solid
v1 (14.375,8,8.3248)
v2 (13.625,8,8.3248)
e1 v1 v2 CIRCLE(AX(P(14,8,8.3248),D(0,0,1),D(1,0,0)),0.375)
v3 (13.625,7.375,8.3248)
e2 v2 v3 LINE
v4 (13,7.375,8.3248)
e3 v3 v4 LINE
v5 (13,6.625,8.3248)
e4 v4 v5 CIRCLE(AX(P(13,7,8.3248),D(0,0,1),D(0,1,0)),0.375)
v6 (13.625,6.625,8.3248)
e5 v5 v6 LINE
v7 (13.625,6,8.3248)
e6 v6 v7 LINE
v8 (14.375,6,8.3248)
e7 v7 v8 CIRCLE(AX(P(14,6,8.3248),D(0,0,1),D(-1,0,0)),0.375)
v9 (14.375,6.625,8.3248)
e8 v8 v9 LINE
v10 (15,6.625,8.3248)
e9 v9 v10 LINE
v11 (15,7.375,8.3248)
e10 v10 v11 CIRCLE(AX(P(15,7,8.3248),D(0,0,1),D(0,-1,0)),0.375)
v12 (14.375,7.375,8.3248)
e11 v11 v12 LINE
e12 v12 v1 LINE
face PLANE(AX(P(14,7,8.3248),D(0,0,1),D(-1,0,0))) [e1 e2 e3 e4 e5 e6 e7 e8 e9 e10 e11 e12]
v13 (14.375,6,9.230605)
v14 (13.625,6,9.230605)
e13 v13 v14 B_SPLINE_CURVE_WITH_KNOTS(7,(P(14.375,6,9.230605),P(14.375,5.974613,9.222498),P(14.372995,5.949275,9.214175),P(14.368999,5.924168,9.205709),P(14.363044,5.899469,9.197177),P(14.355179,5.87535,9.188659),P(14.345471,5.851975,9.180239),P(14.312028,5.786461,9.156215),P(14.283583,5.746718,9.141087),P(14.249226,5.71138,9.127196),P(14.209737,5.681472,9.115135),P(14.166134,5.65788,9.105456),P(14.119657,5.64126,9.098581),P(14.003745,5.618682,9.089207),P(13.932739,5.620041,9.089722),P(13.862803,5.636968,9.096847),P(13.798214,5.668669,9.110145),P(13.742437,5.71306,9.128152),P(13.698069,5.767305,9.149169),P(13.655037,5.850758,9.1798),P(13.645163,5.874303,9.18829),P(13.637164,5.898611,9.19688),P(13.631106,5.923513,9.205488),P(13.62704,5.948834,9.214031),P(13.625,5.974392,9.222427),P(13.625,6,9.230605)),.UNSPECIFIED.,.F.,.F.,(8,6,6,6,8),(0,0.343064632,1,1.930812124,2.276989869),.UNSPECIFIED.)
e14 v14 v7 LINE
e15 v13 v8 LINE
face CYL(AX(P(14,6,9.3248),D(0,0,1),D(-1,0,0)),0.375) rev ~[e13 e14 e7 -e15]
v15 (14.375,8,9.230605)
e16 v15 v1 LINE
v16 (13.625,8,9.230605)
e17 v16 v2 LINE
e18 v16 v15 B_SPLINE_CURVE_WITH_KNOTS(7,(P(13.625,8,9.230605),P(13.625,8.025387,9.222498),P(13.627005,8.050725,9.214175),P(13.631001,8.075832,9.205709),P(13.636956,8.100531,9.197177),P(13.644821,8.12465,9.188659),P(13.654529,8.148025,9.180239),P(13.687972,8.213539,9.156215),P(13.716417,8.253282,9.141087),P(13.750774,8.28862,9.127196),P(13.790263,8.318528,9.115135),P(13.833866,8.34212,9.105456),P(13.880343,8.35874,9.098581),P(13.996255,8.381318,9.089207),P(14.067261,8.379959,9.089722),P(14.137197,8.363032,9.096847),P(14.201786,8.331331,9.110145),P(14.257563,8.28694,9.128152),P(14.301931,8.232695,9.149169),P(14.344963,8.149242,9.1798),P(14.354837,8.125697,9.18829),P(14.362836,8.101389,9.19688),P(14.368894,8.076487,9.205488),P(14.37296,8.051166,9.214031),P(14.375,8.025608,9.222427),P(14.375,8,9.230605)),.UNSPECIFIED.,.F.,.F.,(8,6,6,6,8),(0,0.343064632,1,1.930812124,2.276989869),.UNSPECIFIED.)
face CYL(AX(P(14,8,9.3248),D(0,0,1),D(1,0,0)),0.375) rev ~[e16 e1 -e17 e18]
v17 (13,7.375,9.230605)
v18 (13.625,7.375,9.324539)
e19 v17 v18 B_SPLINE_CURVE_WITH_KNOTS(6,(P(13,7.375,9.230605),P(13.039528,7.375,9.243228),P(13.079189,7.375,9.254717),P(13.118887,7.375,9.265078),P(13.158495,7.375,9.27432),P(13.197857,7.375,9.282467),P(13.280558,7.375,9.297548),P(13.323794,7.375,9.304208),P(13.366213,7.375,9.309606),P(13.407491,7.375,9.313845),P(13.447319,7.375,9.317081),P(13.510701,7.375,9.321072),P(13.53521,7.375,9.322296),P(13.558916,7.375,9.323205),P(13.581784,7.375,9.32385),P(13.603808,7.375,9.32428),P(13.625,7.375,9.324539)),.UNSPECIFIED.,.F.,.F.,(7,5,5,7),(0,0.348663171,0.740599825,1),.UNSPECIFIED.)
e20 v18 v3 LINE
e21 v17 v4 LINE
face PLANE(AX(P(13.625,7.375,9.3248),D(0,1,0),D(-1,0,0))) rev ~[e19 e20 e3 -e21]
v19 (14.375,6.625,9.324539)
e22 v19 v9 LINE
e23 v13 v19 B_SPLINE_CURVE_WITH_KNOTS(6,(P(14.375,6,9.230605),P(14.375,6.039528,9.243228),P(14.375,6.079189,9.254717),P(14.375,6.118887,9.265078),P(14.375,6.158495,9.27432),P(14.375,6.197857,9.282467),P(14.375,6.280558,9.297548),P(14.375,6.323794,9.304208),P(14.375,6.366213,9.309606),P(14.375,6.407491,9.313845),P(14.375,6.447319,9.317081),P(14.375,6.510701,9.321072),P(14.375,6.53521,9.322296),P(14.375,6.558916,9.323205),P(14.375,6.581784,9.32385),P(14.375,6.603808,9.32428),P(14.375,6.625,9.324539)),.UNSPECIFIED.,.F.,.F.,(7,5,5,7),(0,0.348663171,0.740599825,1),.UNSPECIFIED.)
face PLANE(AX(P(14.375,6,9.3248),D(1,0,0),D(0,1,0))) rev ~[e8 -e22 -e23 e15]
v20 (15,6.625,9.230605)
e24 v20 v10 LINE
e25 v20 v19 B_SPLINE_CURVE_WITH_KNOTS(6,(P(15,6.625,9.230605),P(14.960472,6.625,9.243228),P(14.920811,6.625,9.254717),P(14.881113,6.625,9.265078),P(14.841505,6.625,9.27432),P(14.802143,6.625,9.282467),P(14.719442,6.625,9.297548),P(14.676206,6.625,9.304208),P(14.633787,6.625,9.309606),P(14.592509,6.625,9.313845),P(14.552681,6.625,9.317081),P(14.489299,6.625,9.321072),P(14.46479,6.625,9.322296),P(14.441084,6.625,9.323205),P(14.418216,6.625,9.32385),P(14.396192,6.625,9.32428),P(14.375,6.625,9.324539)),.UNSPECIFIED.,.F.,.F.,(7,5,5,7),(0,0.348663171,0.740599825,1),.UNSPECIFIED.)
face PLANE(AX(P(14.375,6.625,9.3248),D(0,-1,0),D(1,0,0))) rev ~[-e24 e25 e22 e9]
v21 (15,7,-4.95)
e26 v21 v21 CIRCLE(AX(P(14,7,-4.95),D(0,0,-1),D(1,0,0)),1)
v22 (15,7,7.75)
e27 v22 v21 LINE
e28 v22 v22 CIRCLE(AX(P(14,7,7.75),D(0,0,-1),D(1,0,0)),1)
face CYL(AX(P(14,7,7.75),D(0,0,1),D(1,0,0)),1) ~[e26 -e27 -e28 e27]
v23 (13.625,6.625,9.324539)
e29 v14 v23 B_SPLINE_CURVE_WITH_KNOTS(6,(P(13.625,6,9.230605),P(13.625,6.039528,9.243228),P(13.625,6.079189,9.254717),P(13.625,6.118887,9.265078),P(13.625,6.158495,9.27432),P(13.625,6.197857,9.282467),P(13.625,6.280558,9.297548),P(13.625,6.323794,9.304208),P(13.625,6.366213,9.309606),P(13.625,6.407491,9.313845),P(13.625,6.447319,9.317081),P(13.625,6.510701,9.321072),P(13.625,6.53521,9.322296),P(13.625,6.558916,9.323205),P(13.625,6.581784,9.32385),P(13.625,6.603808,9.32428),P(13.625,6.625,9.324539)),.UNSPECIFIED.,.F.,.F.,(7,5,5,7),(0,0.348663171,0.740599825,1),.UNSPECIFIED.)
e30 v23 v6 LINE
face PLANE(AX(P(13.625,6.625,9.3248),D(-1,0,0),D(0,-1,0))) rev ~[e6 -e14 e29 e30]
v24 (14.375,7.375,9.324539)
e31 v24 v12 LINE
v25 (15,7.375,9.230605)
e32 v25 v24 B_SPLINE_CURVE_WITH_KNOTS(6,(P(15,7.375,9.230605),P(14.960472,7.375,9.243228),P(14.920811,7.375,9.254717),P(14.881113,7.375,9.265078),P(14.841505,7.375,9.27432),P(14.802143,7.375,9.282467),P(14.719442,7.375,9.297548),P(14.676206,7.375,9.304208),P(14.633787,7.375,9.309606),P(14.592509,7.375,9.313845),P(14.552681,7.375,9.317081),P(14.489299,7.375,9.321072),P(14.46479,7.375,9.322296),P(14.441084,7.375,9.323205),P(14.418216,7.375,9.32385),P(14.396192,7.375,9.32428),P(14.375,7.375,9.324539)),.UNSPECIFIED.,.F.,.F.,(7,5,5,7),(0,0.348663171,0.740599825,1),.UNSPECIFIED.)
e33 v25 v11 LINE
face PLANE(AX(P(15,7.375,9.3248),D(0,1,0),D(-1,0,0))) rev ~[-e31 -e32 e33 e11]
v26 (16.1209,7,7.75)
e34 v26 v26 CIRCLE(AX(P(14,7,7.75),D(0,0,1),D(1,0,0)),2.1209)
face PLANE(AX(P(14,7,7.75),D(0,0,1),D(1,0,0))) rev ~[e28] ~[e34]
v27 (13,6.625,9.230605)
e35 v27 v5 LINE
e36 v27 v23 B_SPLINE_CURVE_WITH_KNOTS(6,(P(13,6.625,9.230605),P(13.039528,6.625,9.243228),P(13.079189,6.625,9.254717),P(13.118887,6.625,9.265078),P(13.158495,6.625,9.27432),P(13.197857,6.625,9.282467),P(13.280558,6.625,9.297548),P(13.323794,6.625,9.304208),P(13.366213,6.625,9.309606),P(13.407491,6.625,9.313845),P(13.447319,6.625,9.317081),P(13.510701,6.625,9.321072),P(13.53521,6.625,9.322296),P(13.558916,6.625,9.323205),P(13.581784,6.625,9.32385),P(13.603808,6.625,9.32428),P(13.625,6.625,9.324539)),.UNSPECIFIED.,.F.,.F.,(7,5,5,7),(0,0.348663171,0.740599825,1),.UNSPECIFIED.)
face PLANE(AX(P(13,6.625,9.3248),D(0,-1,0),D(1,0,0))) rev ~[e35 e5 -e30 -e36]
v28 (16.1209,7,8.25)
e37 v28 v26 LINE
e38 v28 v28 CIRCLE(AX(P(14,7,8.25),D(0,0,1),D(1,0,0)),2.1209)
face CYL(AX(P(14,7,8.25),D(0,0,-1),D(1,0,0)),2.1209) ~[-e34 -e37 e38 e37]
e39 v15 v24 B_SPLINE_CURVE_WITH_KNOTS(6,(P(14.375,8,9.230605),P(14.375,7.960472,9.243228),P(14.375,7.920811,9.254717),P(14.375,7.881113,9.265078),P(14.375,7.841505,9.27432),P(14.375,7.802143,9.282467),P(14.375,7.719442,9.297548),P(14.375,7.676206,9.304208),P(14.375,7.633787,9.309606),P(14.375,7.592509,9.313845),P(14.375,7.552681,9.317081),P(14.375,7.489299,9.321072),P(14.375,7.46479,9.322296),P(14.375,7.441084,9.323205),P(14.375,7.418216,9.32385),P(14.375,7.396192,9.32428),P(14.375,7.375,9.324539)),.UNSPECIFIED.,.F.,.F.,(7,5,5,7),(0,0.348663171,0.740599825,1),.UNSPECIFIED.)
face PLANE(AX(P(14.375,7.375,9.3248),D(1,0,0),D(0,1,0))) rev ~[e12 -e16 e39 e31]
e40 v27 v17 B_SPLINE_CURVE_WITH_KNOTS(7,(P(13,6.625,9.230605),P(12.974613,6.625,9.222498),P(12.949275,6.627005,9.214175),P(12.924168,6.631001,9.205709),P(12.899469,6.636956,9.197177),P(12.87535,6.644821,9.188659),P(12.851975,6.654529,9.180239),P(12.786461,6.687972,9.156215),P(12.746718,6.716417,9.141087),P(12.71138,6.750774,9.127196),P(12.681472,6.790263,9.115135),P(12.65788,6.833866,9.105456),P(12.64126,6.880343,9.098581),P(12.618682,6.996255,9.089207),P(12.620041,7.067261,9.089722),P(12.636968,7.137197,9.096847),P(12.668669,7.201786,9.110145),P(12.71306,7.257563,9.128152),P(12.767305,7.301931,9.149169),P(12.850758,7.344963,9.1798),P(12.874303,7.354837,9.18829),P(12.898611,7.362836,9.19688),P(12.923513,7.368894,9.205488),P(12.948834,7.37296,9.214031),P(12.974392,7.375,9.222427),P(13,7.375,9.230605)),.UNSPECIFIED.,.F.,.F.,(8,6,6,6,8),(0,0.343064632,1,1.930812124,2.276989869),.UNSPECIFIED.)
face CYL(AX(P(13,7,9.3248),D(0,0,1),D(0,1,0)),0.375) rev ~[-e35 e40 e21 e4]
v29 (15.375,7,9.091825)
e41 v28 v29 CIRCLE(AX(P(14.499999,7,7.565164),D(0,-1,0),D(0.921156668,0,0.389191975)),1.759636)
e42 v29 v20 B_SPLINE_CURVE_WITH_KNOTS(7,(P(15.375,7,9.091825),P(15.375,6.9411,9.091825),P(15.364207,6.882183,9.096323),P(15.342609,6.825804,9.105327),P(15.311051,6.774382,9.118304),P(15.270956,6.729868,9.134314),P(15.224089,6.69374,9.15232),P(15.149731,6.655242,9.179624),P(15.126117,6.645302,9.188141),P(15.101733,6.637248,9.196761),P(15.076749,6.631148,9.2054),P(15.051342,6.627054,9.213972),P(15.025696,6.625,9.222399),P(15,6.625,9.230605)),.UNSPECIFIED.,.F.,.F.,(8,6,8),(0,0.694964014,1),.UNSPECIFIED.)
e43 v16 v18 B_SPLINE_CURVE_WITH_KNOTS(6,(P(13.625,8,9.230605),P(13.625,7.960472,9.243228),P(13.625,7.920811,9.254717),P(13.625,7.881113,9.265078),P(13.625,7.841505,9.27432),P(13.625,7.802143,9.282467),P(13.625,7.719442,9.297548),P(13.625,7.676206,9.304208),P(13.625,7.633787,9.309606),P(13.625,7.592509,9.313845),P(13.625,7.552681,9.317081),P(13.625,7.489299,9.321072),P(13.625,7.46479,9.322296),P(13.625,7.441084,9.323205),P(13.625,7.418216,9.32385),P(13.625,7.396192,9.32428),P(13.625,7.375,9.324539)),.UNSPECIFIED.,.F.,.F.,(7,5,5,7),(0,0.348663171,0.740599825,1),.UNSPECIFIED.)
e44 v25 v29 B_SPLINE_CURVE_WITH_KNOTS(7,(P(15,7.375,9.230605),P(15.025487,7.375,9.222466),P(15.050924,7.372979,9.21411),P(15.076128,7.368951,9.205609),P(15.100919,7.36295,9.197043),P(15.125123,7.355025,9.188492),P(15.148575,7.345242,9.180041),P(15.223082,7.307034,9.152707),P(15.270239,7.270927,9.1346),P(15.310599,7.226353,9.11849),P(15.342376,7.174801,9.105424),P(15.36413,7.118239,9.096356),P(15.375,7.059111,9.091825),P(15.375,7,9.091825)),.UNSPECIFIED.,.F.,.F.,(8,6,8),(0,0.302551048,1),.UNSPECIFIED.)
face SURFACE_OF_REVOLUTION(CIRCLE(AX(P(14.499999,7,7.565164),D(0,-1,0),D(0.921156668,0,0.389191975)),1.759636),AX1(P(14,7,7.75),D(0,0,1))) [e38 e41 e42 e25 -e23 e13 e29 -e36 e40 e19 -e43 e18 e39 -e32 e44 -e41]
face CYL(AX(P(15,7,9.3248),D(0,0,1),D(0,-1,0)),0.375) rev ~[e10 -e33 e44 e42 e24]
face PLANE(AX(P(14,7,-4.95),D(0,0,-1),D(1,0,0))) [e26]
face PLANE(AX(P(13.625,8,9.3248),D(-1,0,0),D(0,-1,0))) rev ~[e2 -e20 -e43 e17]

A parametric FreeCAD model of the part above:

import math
import FreeCAD as App
import Part
import Sketcher
from FreeCAD import Vector

doc = App.newDocument("Part")
body = doc.addObject("PartDesign::Body", "Body")

# Sketch on XZ plane
sketch1 = doc.addObject("Sketcher::SketchObject", "Sketch")
body.addObject(sketch1)
sketch1.AttachmentSupport = (doc.XZ_Plane, [""])
sketch1.MapMode = "FlatFace"
sketch1.addGeometry(Part.LineSegment(Vector(0, 1.5748, 0), Vector(0, 0, 0)), False)
sketch1.addGeometry(Part.LineSegment(Vector(0, 0, 0), Vector(2.1209, 0, 0)), False)
sketch1.addGeometry(Part.LineSegment(Vector(2.1209, 0, 0), Vector(2.1209, 0.5, 0)), False)
sketch1.addGeometry(Part.ArcOfCircle(Part.Circle(Vector(0.499999, -0.184836, 0), Vector(0, 0, 1), 1.759636), math.radians(22.904231), math.radians(89.999976)), False)
sketch1.addGeometry(Part.LineSegment(Vector(0.5, 1.5748, 0), Vector(0, 1.5748, 0)), False)
sketch1.addConstraint(Sketcher.Constraint("Coincident", 0, 2, 1, 1))
sketch1.addConstraint(Sketcher.Constraint("Coincident", 1, 2, 2, 1))
sketch1.addConstraint(Sketcher.Constraint("Coincident", 2, 2, 3, 1))
sketch1.addConstraint(Sketcher.Constraint("Tangent", 3, 2, 4, 1))
sketch1.addConstraint(Sketcher.Constraint("Coincident", 4, 2, 0, 1))
sketch1.addConstraint(Sketcher.Constraint("Vertical", 0))
sketch1.addConstraint(Sketcher.Constraint("Horizontal", 1))
sketch1.addConstraint(Sketcher.Constraint("Vertical", 2))
sketch1.addConstraint(Sketcher.Constraint("Horizontal", 4))
sketch1.addConstraint(Sketcher.Constraint("Coincident", 0, 2, -1, 1))
sketch1.addConstraint(Sketcher.Constraint("Equal", 4, 2))
sketch1.addConstraint(Sketcher.Constraint("DistanceX", 4, 2, 4, 1, 0.5))
sketch1.addConstraint(Sketcher.Constraint("DistanceX", 1, 1, 1, 2, 2.1209))
sketch1.addConstraint(Sketcher.Constraint("DistanceY", 0, 2, 0, 1, 1.5748))
revolution = doc.addObject("PartDesign::Revolution", "Revolution")
body.addObject(revolution)
revolution.Profile = sketch1
revolution.ReferenceAxis = (sketch1, ["V_Axis"])
revolution.Angle = 360

# Sketch on XY plane
sketch2 = doc.addObject("Sketcher::SketchObject", "Sketch001")
body.addObject(sketch2)
sketch2.AttachmentSupport = (doc.XY_Plane, [""])
sketch2.MapMode = "FlatFace"
sketch2.AttachmentOffset = App.Placement(Vector(0, 0, 1.5748), App.Rotation())
sketch2.addGeometry(Part.ArcOfCircle(Part.Circle(Vector(0, -1, 0), Vector(0, 0, 1), 0.375), math.radians(180), math.radians(360)), False)
sketch2.addGeometry(Part.LineSegment(Vector(0.375, -1, 0), Vector(0.375, -0.375, 0)), False)
sketch2.addGeometry(Part.LineSegment(Vector(0.375, -0.375, 0), Vector(1, -0.375, 0)), False)
sketch2.addGeometry(Part.ArcOfCircle(Part.Circle(Vector(1, 0, 0), Vector(0, 0, 1), 0.375), math.radians(-90), math.radians(90)), False)
sketch2.addGeometry(Part.LineSegment(Vector(1, 0.375, 0), Vector(0.375, 0.375, 0)), False)
sketch2.addGeometry(Part.LineSegment(Vector(0.375, 0.375, 0), Vector(0.375, 1, 0)), False)
sketch2.addGeometry(Part.ArcOfCircle(Part.Circle(Vector(0, 1, 0), Vector(0, 0, 1), 0.375), math.radians(0), math.radians(180)), False)
sketch2.addGeometry(Part.LineSegment(Vector(-0.375, 1, 0), Vector(-0.375, 0.375, 0)), False)
sketch2.addGeometry(Part.LineSegment(Vector(-0.375, 0.375, 0), Vector(-1, 0.375, 0)), False)
sketch2.addGeometry(Part.ArcOfCircle(Part.Circle(Vector(-1, 0, 0), Vector(0, 0, 1), 0.375), math.radians(90), math.radians(270)), False)
sketch2.addGeometry(Part.LineSegment(Vector(-1, -0.375, 0), Vector(-0.375, -0.375, 0)), False)
sketch2.addGeometry(Part.LineSegment(Vector(-0.375, -0.375, 0), Vector(-0.375, -1, 0)), False)
sketch2.addConstraint(Sketcher.Constraint("Tangent", 0, 2, 1, 1))
sketch2.addConstraint(Sketcher.Constraint("Coincident", 1, 2, 2, 1))
sketch2.addConstraint(Sketcher.Constraint("Tangent", 2, 2, 3, 1))
sketch2.addConstraint(Sketcher.Constraint("Tangent", 3, 2, 4, 1))
sketch2.addConstraint(Sketcher.Constraint("Coincident", 4, 2, 5, 1))
sketch2.addConstraint(Sketcher.Constraint("Tangent", 5, 2, 6, 1))
sketch2.addConstraint(Sketcher.Constraint("Tangent", 6, 2, 7, 1))
sketch2.addConstraint(Sketcher.Constraint("Coincident", 7, 2, 8, 1))
sketch2.addConstraint(Sketcher.Constraint("Tangent", 8, 2, 9, 1))
sketch2.addConstraint(Sketcher.Constraint("Tangent", 9, 2, 10, 1))
sketch2.addConstraint(Sketcher.Constraint("Coincident", 10, 2, 11, 1))
sketch2.addConstraint(Sketcher.Constraint("Tangent", 11, 2, 0, 1))
sketch2.addConstraint(Sketcher.Constraint("Vertical", 1))
sketch2.addConstraint(Sketcher.Constraint("Horizontal", 2))
sketch2.addConstraint(Sketcher.Constraint("Horizontal", 4))
sketch2.addConstraint(Sketcher.Constraint("Vertical", 5))
sketch2.addConstraint(Sketcher.Constraint("Vertical", 7))
sketch2.addConstraint(Sketcher.Constraint("Horizontal", 8))
sketch2.addConstraint(Sketcher.Constraint("Horizontal", 10))
sketch2.addConstraint(Sketcher.Constraint("Vertical", 11))
sketch2.addConstraint(Sketcher.Constraint("Equal", 0, 3))
sketch2.addConstraint(Sketcher.Constraint("Equal", 3, 6))
sketch2.addConstraint(Sketcher.Constraint("Equal", 6, 9))
sketch2.addConstraint(Sketcher.Constraint("Symmetric", 0, 3, 6, 3, -1, 1))
sketch2.addConstraint(Sketcher.Constraint("Symmetric", 3, 3, 9, 3, -1, 1))
sketch2.addConstraint(Sketcher.Constraint("Symmetric", 4, 2, 7, 2, -2))
sketch2.addConstraint(Sketcher.Constraint("Equal", 10, 1))
sketch2.addConstraint(Sketcher.Constraint("DistanceY", 0, 3, -1, 1, 1.0))
sketch2.addConstraint(Sketcher.Constraint("Radius", 0, 0.375))
pocket1 = doc.addObject("PartDesign::Pocket", "Pocket")
body.addObject(pocket1)
pocket1.Profile = sketch2
pocket1.Length = 1

# Sketch on XY plane
sketch3 = doc.addObject("Sketcher::SketchObject", "Sketch002")
body.addObject(sketch3)
sketch3.AttachmentSupport = (doc.XY_Plane, [""])
sketch3.MapMode = "FlatFace"
sketch3.addGeometry(Part.Circle(Vector(0, 0, 0), Vector(0, 0, 1), 1), False)
sketch3.addConstraint(Sketcher.Constraint("Coincident", 0, 3, -1, 1))
sketch3.addConstraint(Sketcher.Constraint("Diameter", 0, 2.0))
pad1 = doc.addObject("PartDesign::Pad", "Pad")
body.addObject(pad1)
pad1.Profile = sketch3
pad1.Length = 12.7
pad1.Reversed = True
body2 = doc.addObject("PartDesign::Body", "Body001")
doc.recompute()

body.Placement = App.Placement(Vector(14, 7, 7.75), App.Rotation(Vector(0, 0, 1), 0))
boolean = doc.addObject("PartDesign::Boolean", "Boolean")
body2.addObject(boolean)
boolean.Type = "Fuse"
boolean.addObjects([body])

doc.recompute()
